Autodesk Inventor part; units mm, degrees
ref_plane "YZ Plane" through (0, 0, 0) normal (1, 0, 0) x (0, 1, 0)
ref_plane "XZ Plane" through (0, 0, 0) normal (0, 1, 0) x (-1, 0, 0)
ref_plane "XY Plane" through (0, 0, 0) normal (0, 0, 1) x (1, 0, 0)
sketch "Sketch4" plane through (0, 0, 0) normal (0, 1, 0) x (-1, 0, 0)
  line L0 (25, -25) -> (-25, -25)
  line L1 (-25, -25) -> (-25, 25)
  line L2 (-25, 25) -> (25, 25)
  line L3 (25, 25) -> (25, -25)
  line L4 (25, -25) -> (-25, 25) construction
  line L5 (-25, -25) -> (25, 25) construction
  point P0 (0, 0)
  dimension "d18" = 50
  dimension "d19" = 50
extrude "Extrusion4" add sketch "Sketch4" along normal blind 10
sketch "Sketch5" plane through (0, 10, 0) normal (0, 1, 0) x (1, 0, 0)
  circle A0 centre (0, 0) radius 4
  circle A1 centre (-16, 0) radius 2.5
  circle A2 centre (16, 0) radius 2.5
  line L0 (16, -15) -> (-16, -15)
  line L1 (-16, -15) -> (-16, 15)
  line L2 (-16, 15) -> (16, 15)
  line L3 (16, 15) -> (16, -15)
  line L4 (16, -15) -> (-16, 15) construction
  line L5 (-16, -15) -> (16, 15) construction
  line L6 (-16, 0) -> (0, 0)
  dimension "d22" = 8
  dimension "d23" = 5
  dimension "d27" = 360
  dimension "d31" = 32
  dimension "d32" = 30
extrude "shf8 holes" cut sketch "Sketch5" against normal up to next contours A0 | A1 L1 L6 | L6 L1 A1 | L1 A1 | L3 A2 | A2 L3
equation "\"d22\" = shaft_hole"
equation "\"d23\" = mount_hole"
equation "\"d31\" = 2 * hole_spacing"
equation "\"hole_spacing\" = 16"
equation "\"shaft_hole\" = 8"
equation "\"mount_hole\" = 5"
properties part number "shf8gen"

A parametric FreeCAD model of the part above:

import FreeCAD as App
import Part
import Sketcher
Q = App.Units.Quantity


def add_polygon(sketch, points):
    """Adds a closed chain of lines whose ends are joined by coincident constraints."""
    first, n = sketch.GeometryCount, len(points)
    for a, b in zip(points, points[1:] + points[:1]):
        sketch.addGeometry(Part.LineSegment(App.Vector(*a, 0), App.Vector(*b, 0)), False)
    for i in range(n):
        sketch.addConstraint(Sketcher.Constraint("Coincident", first + i, 2, first + (i + 1) % n, 1))

doc = App.newDocument("Part")
body = doc.addObject("PartDesign::Body", "Body")

sketch1 = doc.addObject("Sketcher::SketchObject", "Sketch")
body.addObject(sketch1)
sketch1.AttachmentSupport = (doc.XZ_Plane, [""])
sketch1.MapMode = "FlatFace"
add_polygon(sketch1, [(25, -25), (-25, -25), (-25, 25), (25, 25)])
sketch1.addConstraint(Sketcher.Constraint("Horizontal", 0))
sketch1.addConstraint(Sketcher.Constraint("Vertical", 1))
sketch1.addConstraint(Sketcher.Constraint("Horizontal", 2))
sketch1.addConstraint(Sketcher.Constraint("Vertical", 3))
sketch1.addConstraint(Sketcher.Constraint("Symmetric", 0, 2, 2, 2, -1, 1))
sketch1.addConstraint(Sketcher.Constraint("Equal", 2, 1))
sketch1.addConstraint(Sketcher.Constraint("DistanceX", 0, 2, 0, 1, Q("50 mm")))
pad1 = doc.addObject("PartDesign::Pad", "Pad")
body.addObject(pad1)
pad1.Profile = sketch1
pad1.Length = 10
pad1.Reversed = True

sketch2 = doc.addObject("Sketcher::SketchObject", "Sketch001")
body.addObject(sketch2)
sketch2.AttachmentSupport = (doc.XZ_Plane, [""])
sketch2.MapMode = "FlatFace"
sketch2.AttachmentOffset = App.Placement(App.Vector(0, 0, -10), App.Rotation())
sketch2.addGeometry(Part.Circle(App.Vector(0, 0, 0), App.Vector(0, 0, 1), 4), False)
sketch2.addGeometry(Part.Circle(App.Vector(-16, 0, 0), App.Vector(0, 0, 1), 2.5), False)
sketch2.addGeometry(Part.Circle(App.Vector(16, 0, 0), App.Vector(0, 0, 1), 2.5), False)
sketch2.addConstraint(Sketcher.Constraint("Coincident", 0, 3, -1, 1))
sketch2.addConstraint(Sketcher.Constraint("Equal", 1, 2))
sketch2.addConstraint(Sketcher.Constraint("Symmetric", 1, 3, 2, 3, -1, 1))
sketch2.addConstraint(Sketcher.Constraint("PointOnObject", 1, 3, -1))
sketch2.addConstraint(Sketcher.Constraint("Diameter", 0, Q("8 mm")))
sketch2.addConstraint(Sketcher.Constraint("Diameter", 1, Q("5 mm")))
sketch2.addConstraint(Sketcher.Constraint("DistanceX", 1, 3, 2, 3, Q("32 mm")))
pocket1 = doc.addObject("PartDesign::Pocket", "Pocket")
body.addObject(pocket1)
pocket1.Profile = sketch2
pocket1.Type = "UpToFirst"
pocket1.Reversed = True

doc.recompute()
